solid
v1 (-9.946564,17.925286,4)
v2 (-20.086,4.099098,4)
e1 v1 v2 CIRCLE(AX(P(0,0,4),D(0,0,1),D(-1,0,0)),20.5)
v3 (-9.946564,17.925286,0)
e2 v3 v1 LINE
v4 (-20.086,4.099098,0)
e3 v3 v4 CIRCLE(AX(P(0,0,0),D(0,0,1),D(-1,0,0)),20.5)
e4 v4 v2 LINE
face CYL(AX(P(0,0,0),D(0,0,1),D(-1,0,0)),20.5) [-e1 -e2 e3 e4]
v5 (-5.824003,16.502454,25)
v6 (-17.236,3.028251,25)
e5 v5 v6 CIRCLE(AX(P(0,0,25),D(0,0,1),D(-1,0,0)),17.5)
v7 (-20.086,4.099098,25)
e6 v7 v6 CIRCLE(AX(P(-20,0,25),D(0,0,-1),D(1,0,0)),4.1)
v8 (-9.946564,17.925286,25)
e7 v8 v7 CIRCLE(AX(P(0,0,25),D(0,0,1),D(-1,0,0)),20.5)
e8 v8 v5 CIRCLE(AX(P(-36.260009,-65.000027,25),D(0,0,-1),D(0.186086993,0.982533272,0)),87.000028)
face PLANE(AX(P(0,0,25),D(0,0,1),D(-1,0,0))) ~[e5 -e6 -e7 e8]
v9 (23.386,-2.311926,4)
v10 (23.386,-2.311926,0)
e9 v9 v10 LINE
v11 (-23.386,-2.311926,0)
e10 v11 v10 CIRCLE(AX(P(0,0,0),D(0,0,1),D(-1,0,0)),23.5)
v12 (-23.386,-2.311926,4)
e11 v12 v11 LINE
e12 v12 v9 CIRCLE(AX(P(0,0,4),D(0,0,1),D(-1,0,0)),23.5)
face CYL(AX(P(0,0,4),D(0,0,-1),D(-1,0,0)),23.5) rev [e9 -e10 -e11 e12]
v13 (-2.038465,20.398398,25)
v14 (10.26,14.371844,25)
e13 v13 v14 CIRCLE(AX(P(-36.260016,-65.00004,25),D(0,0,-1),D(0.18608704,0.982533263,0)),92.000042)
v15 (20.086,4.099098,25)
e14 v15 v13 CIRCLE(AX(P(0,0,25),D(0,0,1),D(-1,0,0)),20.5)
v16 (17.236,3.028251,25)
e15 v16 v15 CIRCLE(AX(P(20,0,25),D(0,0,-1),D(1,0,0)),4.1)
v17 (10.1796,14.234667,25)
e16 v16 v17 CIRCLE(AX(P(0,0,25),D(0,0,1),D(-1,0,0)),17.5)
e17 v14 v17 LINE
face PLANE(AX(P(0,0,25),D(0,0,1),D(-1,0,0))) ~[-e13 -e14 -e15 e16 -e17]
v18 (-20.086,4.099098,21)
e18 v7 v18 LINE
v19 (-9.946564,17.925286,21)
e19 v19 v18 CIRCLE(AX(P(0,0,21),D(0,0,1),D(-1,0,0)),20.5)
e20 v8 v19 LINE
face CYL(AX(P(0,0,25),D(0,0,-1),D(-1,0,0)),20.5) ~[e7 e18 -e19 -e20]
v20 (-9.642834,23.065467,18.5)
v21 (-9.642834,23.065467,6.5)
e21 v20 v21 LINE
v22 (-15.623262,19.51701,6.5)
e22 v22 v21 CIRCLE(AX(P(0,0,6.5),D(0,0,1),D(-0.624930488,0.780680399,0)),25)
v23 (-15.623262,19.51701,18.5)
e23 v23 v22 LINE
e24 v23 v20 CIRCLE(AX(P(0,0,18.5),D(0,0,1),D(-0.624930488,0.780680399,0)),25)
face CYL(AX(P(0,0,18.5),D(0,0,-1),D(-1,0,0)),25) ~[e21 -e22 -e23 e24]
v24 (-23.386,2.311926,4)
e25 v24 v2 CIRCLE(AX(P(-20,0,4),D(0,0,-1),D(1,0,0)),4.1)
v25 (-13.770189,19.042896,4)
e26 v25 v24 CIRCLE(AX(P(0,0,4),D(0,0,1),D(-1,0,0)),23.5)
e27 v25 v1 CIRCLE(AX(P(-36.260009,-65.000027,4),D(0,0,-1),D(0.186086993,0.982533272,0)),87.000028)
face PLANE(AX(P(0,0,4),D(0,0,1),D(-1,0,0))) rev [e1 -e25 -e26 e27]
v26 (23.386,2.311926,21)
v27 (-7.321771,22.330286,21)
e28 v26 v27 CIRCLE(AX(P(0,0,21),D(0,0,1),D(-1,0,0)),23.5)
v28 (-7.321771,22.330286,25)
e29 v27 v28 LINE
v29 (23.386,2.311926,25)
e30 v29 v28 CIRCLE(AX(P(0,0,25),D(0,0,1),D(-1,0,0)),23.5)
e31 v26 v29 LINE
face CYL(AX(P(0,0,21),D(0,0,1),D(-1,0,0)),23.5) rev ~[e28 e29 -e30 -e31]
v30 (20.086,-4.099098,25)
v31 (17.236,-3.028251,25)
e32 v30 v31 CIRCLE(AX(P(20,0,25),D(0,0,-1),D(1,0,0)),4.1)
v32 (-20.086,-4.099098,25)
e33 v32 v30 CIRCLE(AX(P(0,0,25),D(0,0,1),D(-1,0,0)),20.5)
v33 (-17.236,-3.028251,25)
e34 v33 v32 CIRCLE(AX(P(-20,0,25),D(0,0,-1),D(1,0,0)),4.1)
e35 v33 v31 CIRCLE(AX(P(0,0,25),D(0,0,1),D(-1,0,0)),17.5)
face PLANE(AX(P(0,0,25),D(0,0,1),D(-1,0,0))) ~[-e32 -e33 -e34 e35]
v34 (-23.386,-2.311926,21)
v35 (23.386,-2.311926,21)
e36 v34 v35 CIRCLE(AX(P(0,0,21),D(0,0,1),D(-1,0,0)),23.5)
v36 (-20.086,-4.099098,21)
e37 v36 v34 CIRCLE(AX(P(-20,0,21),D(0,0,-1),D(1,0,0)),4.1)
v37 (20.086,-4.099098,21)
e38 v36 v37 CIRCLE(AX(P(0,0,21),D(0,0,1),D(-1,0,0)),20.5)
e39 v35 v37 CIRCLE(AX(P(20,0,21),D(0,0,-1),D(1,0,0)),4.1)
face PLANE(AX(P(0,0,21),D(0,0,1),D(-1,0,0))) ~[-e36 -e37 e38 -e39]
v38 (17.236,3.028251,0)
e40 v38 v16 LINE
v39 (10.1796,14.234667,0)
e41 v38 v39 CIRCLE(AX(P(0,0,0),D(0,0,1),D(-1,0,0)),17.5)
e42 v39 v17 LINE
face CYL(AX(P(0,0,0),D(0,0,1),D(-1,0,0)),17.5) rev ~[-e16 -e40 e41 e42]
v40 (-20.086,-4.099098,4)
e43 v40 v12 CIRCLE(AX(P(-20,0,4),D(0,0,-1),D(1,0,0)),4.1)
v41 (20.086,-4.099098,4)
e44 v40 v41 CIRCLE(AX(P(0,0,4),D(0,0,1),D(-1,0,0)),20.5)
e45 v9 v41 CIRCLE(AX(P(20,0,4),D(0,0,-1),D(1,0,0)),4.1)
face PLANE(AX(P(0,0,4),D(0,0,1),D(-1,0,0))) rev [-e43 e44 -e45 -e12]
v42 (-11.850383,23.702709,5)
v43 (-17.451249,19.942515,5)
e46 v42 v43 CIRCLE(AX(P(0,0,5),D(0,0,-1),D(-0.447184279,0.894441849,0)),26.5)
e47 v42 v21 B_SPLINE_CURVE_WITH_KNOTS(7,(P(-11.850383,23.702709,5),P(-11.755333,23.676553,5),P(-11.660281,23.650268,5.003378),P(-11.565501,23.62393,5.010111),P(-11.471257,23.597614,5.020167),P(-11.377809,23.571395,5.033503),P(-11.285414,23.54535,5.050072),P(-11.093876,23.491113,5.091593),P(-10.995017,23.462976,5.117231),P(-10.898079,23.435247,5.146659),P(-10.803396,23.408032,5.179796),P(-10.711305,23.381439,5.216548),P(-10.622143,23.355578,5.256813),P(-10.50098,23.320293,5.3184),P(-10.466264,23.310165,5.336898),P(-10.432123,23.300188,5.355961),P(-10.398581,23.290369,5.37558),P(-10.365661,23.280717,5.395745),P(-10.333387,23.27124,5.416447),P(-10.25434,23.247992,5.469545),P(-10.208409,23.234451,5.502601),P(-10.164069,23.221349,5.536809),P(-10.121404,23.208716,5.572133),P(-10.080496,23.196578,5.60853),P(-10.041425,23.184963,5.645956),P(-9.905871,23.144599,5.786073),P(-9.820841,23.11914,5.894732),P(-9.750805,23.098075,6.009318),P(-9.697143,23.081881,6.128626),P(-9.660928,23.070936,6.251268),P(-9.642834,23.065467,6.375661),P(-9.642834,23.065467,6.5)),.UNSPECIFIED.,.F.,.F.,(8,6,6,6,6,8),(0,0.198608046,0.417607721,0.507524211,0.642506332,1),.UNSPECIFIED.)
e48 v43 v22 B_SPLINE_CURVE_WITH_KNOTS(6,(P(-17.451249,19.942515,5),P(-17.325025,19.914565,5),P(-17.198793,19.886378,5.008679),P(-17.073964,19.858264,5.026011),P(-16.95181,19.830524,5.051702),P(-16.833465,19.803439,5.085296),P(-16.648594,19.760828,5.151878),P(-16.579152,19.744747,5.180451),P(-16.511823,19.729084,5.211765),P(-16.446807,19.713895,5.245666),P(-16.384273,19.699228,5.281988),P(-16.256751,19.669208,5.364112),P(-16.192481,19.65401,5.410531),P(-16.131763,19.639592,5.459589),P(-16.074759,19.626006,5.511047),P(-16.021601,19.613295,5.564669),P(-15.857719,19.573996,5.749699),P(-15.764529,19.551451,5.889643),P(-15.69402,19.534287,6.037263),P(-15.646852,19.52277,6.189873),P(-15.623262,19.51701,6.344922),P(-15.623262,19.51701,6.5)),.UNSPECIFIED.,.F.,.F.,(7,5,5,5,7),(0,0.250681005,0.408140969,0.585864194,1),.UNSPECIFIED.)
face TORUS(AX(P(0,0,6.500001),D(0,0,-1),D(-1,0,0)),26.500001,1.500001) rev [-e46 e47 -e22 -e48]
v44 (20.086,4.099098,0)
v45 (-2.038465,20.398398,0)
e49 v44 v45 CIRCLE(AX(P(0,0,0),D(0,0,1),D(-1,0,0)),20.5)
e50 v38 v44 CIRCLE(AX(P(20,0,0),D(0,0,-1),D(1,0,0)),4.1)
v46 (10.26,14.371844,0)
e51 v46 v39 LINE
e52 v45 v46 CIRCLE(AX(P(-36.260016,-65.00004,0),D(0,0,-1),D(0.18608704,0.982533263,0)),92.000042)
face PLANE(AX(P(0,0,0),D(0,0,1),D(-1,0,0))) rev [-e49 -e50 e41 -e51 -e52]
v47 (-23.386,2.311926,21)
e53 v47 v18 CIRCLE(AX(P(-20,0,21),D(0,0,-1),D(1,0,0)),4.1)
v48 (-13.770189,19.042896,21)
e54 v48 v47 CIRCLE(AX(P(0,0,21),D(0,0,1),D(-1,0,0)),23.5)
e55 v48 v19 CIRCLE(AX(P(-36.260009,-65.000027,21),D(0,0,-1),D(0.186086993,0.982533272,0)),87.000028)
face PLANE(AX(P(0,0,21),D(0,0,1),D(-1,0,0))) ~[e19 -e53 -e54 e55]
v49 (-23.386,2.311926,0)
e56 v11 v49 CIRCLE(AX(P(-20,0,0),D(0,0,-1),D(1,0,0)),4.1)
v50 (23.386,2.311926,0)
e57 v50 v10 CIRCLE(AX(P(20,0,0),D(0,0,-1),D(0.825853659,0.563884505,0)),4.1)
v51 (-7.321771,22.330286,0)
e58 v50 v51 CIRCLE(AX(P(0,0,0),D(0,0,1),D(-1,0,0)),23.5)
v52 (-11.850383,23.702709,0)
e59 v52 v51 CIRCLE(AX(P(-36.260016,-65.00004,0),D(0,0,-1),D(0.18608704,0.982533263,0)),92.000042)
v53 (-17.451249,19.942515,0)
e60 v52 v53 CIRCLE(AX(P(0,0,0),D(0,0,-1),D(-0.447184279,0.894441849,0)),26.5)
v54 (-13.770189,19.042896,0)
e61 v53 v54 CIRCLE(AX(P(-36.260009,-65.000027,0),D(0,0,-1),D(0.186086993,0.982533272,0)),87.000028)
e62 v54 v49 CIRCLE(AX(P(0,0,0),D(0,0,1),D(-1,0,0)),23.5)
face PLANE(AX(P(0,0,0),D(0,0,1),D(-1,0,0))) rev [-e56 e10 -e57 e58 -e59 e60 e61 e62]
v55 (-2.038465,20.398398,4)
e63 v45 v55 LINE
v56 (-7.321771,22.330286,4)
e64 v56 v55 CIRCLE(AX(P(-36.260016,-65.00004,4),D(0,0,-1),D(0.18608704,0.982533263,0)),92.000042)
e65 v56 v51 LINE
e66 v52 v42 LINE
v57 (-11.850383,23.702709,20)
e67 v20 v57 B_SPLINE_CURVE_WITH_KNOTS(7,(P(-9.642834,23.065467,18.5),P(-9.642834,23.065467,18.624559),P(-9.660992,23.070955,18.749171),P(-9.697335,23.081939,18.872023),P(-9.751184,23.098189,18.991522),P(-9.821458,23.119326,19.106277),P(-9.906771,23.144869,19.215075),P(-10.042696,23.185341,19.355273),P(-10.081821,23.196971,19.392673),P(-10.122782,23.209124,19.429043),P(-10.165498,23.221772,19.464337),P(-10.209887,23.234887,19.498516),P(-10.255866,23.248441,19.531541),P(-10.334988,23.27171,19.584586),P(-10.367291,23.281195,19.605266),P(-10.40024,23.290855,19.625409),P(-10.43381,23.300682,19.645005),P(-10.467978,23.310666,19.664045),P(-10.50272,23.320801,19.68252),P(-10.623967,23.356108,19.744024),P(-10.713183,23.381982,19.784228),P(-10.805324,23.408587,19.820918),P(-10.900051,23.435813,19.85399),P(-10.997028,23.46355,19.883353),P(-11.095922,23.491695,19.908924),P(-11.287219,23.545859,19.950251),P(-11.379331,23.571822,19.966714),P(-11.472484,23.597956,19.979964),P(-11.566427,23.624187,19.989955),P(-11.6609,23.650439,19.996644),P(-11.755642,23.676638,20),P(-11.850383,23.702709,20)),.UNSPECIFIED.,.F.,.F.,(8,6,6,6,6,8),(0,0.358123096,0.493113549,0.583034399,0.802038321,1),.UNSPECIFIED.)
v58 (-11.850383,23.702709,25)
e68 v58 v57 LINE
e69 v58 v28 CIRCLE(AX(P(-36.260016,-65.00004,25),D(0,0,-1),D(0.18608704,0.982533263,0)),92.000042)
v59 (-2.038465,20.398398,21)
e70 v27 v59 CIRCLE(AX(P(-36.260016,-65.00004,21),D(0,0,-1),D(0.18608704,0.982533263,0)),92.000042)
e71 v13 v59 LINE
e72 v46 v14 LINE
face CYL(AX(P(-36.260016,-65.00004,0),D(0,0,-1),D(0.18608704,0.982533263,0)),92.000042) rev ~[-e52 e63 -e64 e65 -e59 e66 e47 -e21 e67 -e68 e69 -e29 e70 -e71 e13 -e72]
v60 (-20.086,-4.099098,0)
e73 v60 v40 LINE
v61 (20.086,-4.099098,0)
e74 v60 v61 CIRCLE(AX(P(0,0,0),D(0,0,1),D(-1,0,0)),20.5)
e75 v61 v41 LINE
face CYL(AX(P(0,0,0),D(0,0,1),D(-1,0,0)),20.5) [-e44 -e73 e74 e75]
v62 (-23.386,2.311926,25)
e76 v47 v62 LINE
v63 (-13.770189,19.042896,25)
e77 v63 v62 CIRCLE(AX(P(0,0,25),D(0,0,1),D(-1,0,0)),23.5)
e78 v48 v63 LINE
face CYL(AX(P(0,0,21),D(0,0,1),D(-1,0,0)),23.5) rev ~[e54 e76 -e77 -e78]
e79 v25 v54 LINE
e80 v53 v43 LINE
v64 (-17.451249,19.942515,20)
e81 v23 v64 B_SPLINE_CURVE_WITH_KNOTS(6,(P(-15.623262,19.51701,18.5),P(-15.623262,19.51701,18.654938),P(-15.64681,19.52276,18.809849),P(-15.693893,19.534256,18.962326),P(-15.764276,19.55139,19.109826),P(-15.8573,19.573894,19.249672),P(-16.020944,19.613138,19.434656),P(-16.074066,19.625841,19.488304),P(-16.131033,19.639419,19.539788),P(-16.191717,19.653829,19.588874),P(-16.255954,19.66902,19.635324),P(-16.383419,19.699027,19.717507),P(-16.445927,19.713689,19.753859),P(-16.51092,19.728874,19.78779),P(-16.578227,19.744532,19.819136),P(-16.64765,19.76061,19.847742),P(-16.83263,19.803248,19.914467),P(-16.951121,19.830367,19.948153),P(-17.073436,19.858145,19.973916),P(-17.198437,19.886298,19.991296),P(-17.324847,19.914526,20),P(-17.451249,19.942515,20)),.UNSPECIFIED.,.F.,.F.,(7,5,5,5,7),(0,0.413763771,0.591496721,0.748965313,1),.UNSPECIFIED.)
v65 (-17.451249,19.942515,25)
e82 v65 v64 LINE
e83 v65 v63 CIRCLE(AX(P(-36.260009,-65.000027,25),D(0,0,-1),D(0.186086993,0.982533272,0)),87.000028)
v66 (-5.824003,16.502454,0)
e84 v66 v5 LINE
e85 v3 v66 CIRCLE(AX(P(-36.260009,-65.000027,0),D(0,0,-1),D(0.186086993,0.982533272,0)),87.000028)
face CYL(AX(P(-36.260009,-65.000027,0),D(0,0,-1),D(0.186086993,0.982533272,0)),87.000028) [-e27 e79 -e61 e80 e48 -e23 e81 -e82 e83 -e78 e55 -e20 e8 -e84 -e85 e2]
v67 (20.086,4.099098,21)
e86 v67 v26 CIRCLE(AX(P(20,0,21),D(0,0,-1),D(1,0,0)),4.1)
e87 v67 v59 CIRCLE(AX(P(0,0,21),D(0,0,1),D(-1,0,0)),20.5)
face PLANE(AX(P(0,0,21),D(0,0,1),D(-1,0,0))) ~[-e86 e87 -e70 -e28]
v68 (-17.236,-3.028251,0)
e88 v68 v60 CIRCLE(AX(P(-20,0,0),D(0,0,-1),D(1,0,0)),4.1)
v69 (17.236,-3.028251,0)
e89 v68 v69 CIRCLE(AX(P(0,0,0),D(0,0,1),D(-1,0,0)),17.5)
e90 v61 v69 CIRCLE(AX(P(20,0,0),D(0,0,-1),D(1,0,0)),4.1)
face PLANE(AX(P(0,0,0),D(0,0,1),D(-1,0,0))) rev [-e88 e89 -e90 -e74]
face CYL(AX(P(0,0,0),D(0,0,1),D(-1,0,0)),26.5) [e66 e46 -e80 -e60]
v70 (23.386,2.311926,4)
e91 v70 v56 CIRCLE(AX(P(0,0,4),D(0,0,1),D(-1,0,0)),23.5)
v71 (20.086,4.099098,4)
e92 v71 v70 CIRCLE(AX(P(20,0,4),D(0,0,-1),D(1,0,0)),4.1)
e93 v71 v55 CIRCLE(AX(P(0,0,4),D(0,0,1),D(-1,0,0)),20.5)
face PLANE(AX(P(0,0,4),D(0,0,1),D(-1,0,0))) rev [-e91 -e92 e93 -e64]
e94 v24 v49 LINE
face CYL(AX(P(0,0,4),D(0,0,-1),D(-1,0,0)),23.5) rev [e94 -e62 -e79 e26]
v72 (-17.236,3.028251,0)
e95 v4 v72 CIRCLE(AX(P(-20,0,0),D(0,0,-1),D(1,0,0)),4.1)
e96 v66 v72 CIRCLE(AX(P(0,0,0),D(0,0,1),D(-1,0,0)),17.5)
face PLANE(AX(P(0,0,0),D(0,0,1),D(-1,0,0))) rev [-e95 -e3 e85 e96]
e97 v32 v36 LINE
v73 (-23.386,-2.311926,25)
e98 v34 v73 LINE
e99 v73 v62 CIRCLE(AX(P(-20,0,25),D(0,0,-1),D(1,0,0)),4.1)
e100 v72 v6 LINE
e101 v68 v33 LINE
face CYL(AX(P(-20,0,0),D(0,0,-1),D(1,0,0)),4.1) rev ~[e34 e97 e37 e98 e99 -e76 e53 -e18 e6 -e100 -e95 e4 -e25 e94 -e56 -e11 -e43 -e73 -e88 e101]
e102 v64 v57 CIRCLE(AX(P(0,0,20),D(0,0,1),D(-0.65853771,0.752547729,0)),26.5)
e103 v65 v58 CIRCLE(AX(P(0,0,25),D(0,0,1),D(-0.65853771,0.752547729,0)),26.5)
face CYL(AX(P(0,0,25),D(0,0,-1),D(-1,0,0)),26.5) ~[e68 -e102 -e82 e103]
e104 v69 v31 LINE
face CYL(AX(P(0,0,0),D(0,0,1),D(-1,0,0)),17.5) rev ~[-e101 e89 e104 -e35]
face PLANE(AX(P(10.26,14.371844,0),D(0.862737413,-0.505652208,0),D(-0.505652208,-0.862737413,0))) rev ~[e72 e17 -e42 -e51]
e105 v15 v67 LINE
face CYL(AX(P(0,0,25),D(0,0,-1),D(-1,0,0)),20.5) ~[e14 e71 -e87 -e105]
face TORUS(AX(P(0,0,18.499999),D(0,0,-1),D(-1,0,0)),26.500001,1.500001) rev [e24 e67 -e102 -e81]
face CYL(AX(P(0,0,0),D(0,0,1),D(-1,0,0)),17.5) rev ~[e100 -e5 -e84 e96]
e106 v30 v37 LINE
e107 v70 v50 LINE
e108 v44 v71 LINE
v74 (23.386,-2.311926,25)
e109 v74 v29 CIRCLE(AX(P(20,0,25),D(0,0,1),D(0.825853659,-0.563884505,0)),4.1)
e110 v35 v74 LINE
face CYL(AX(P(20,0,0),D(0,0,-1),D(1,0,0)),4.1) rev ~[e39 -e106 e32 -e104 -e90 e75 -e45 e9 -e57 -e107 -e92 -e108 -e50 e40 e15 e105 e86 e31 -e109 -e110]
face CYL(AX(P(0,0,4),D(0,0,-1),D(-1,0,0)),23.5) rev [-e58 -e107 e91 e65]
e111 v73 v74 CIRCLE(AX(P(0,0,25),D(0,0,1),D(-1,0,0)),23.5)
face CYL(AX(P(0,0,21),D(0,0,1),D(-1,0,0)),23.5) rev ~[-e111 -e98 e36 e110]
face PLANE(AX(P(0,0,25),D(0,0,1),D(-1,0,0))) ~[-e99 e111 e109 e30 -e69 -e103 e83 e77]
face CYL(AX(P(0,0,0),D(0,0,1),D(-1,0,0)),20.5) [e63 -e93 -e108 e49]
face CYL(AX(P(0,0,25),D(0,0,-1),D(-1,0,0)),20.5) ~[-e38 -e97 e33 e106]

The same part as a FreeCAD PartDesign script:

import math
import FreeCAD as App
import Part
import Sketcher

V = App.Vector
Q = App.Units.Quantity

doc = App.newDocument("Part")
body = doc.addObject("PartDesign::Body", "Body")

# Sketch on XZ plane
sketch1 = body.newObject("Sketcher::SketchObject", "Sketch")
sketch1.AttachmentSupport = (doc.getObject("XZ_Plane"), [""])
sketch1.MapMode = "FlatFace"
sketch1.addGeometry([
    Part.LineSegment(V(-17.5, 0, 0), V(-17.5, 25, 0)),  # 0
    Part.LineSegment(V(-17.5, 25, 0), V(-20.5, 25, 0)),  # 1
    Part.LineSegment(V(-20.5, 25, 0), V(-20.5, 21, 0)),  # 2
    Part.LineSegment(V(-20.5, 21, 0), V(-23.5, 21, 0)),  # 3
    Part.LineSegment(V(-23.5, 21, 0), V(-23.5, 25, 0)),  # 4
    Part.LineSegment(V(-23.5, 25, 0), V(-26.5, 25, 0)),  # 5
    Part.LineSegment(V(-26.5, 25, 0), V(-26.5, 20, 0)),  # 6
    Part.ArcOfCircle(Part.Circle(V(-26.5, 18.5, 0), V(0, 0, 1), 1.5), math.radians(0), math.radians(90)),  # 7
    Part.LineSegment(V(-25, 18.5, 0), V(-25, 6.5, 0)),  # 8
    Part.ArcOfCircle(Part.Circle(V(-26.5, 6.5, 0), V(0, 0, 1), 1.5), math.radians(-90), math.radians(0)),  # 9
    Part.LineSegment(V(-26.5, 5, 0), V(-26.5, 0, 0)),  # 10
    Part.LineSegment(V(-26.5, 0, 0), V(-23.5, 0, 0)),  # 11
    Part.LineSegment(V(-23.5, 0, 0), V(-23.5, 4, 0)),  # 12
    Part.LineSegment(V(-23.5, 4, 0), V(-20.5, 4, 0)),  # 13
    Part.LineSegment(V(-20.5, 4, 0), V(-20.5, 0, 0)),  # 14
    Part.LineSegment(V(-20.5, 0, 0), V(-17.5, 0, 0)),  # 15
], False)
sketch1.addConstraint([
    Sketcher.Constraint("Coincident", 0, 2, 1, 1),
    Sketcher.Constraint("Coincident", 1, 2, 2, 1),
    Sketcher.Constraint("Coincident", 2, 2, 3, 1),
    Sketcher.Constraint("Coincident", 3, 2, 4, 1),
    Sketcher.Constraint("Coincident", 4, 2, 5, 1),
    Sketcher.Constraint("Coincident", 5, 2, 6, 1),
    Sketcher.Constraint("Coincident", 6, 2, 7, 2),
    Sketcher.Constraint("Tangent", 7, 1, 8, 1),
    Sketcher.Constraint("Tangent", 8, 2, 9, 2),
    Sketcher.Constraint("Coincident", 9, 1, 10, 1),
    Sketcher.Constraint("Coincident", 10, 2, 11, 1),
    Sketcher.Constraint("Coincident", 11, 2, 12, 1),
    Sketcher.Constraint("Coincident", 12, 2, 13, 1),
    Sketcher.Constraint("Coincident", 13, 2, 14, 1),
    Sketcher.Constraint("Coincident", 14, 2, 15, 1),
    Sketcher.Constraint("Coincident", 15, 2, 0, 1),
    Sketcher.Constraint("Vertical", 0),
    Sketcher.Constraint("Horizontal", 1),
    Sketcher.Constraint("Vertical", 2),
    Sketcher.Constraint("Horizontal", 3),
    Sketcher.Constraint("Vertical", 4),
    Sketcher.Constraint("Horizontal", 5),
    Sketcher.Constraint("Vertical", 6),
    Sketcher.Constraint("Vertical", 8),
    Sketcher.Constraint("Vertical", 10),
    Sketcher.Constraint("Horizontal", 11),
    Sketcher.Constraint("Vertical", 12),
    Sketcher.Constraint("Horizontal", 13),
    Sketcher.Constraint("Vertical", 14),
    Sketcher.Constraint("Horizontal", 15),
    Sketcher.Constraint("Equal", 7, 9),
    Sketcher.Constraint("PointOnObject", 10, 2, -1),
    Sketcher.Constraint("PointOnObject", 14, 2, -1),
    Sketcher.Constraint("Horizontal", 1, 2, 4, 2),
    Sketcher.Constraint("Vertical", 9, 3, 5, 2),
    Sketcher.Constraint("Vertical", 6, 2, 9, 1),
    Sketcher.Constraint("Vertical", 4, 2, 11, 2),
    Sketcher.Constraint("Vertical", 2, 2, 13, 2),
    Sketcher.Constraint("Equal", 1, 3),
    Sketcher.Constraint("Equal", 3, 5),
    Sketcher.Constraint("Equal", 6, 10),
    Sketcher.Constraint("Equal", 4, 12),
    Sketcher.Constraint("Radius", 7, Q("1.500001 mm")),
    Sketcher.Constraint("DistanceX", 1, 2, 1, 1, Q("3 mm")),
    Sketcher.Constraint("DistanceY", 0, 1, 0, 2, Q("25 mm")),
    Sketcher.Constraint("DistanceY", 2, 2, 2, 1, Q("4 mm")),
    Sketcher.Constraint("DistanceY", 6, 2, 6, 1, Q("5 mm")),
    Sketcher.Constraint("DistanceX", 7, 1, -1, 1, Q("25 mm")),
])
revolution = body.newObject("PartDesign::Revolution", "Revolution")
revolution.Profile = sketch1
revolution.ReferenceAxis = (sketch1, ["V_Axis"])
revolution.Angle = 360

# Sketch on XY plane
sketch2 = body.newObject("Sketcher::SketchObject", "Sketch001")
sketch2.AttachmentSupport = (doc.getObject("XY_Plane"), [""])
sketch2.MapMode = "FlatFace"
sketch2.addGeometry([
    Part.Circle(V(20, 0, 0), V(0, 0, 1), 4.1),  # 0
    Part.Circle(V(-20, 0, 0), V(0, 0, 1), 4.1),  # 1
    Part.ArcOfCircle(Part.Circle(V(-36.3, -65, 0), V(0, 0, 1), 87), math.radians(59.63), math.radians(79.28)),  # 2
    Part.LineSegment(V(-20.1, 20.5, 0), V(-19.1, 25.4, 0)),  # 3
    Part.ArcOfCircle(Part.Circle(V(-36.3, -65, 0), V(0, 0, 1), 92), math.radians(59.63), math.radians(79.28)),  # 4
    Part.LineSegment(V(10.3, 14.4, 0), V(7.7, 10.1, 0)),  # 5
], False)
sketch2.addConstraint([
    Sketcher.Constraint("Coincident", 2, 2, 3, 1),
    Sketcher.Constraint("Coincident", 3, 2, 4, 2),
    Sketcher.Constraint("Coincident", 4, 1, 5, 1),
    Sketcher.Constraint("Coincident", 5, 2, 2, 1),
    Sketcher.Constraint("Equal", 0, 1),
    Sketcher.Constraint("Symmetric", 0, 3, 1, 3, -1, 1),
    Sketcher.Constraint("PointOnObject", 0, 3, -1),
    Sketcher.Constraint("Equal", 3, 5),
    Sketcher.Constraint("Diameter", 0, Q("8.2 mm")),
    Sketcher.Constraint("Distance", 3, Q("5.000001 mm")),
    Sketcher.Constraint("DistanceX", -1, 1, 0, 3, Q("20 mm")),
    Sketcher.Constraint("DistanceX", 3, 2, 4, 1, Q("29.4 mm")),
    Sketcher.Constraint("DistanceX", 3, 2, -1, 1, Q("19.14 mm")),
    Sketcher.Constraint("Radius", 2, Q("87.000028 mm")),
    Sketcher.Constraint("Radius", 4, Q("92.000042 mm")),
    Sketcher.Constraint("DistanceY", 4, 3, 3, 2, Q("90.393102 mm")),
    Sketcher.Constraint("DistanceY", 4, 3, -1, 1, Q("65.00004 mm")),
    Sketcher.Constraint("DistanceX", -1, 1, 5, 2, Q("7.731739 mm")),
    Sketcher.Constraint("DistanceY", 2, 3, 2, 2, Q("85.480422 mm")),
])
pocket1 = body.newObject("PartDesign::Pocket", "Pocket")
pocket1.Profile = sketch2
pocket1.Type = "ThroughAll"
pocket1.Reversed = True

doc.recompute()
